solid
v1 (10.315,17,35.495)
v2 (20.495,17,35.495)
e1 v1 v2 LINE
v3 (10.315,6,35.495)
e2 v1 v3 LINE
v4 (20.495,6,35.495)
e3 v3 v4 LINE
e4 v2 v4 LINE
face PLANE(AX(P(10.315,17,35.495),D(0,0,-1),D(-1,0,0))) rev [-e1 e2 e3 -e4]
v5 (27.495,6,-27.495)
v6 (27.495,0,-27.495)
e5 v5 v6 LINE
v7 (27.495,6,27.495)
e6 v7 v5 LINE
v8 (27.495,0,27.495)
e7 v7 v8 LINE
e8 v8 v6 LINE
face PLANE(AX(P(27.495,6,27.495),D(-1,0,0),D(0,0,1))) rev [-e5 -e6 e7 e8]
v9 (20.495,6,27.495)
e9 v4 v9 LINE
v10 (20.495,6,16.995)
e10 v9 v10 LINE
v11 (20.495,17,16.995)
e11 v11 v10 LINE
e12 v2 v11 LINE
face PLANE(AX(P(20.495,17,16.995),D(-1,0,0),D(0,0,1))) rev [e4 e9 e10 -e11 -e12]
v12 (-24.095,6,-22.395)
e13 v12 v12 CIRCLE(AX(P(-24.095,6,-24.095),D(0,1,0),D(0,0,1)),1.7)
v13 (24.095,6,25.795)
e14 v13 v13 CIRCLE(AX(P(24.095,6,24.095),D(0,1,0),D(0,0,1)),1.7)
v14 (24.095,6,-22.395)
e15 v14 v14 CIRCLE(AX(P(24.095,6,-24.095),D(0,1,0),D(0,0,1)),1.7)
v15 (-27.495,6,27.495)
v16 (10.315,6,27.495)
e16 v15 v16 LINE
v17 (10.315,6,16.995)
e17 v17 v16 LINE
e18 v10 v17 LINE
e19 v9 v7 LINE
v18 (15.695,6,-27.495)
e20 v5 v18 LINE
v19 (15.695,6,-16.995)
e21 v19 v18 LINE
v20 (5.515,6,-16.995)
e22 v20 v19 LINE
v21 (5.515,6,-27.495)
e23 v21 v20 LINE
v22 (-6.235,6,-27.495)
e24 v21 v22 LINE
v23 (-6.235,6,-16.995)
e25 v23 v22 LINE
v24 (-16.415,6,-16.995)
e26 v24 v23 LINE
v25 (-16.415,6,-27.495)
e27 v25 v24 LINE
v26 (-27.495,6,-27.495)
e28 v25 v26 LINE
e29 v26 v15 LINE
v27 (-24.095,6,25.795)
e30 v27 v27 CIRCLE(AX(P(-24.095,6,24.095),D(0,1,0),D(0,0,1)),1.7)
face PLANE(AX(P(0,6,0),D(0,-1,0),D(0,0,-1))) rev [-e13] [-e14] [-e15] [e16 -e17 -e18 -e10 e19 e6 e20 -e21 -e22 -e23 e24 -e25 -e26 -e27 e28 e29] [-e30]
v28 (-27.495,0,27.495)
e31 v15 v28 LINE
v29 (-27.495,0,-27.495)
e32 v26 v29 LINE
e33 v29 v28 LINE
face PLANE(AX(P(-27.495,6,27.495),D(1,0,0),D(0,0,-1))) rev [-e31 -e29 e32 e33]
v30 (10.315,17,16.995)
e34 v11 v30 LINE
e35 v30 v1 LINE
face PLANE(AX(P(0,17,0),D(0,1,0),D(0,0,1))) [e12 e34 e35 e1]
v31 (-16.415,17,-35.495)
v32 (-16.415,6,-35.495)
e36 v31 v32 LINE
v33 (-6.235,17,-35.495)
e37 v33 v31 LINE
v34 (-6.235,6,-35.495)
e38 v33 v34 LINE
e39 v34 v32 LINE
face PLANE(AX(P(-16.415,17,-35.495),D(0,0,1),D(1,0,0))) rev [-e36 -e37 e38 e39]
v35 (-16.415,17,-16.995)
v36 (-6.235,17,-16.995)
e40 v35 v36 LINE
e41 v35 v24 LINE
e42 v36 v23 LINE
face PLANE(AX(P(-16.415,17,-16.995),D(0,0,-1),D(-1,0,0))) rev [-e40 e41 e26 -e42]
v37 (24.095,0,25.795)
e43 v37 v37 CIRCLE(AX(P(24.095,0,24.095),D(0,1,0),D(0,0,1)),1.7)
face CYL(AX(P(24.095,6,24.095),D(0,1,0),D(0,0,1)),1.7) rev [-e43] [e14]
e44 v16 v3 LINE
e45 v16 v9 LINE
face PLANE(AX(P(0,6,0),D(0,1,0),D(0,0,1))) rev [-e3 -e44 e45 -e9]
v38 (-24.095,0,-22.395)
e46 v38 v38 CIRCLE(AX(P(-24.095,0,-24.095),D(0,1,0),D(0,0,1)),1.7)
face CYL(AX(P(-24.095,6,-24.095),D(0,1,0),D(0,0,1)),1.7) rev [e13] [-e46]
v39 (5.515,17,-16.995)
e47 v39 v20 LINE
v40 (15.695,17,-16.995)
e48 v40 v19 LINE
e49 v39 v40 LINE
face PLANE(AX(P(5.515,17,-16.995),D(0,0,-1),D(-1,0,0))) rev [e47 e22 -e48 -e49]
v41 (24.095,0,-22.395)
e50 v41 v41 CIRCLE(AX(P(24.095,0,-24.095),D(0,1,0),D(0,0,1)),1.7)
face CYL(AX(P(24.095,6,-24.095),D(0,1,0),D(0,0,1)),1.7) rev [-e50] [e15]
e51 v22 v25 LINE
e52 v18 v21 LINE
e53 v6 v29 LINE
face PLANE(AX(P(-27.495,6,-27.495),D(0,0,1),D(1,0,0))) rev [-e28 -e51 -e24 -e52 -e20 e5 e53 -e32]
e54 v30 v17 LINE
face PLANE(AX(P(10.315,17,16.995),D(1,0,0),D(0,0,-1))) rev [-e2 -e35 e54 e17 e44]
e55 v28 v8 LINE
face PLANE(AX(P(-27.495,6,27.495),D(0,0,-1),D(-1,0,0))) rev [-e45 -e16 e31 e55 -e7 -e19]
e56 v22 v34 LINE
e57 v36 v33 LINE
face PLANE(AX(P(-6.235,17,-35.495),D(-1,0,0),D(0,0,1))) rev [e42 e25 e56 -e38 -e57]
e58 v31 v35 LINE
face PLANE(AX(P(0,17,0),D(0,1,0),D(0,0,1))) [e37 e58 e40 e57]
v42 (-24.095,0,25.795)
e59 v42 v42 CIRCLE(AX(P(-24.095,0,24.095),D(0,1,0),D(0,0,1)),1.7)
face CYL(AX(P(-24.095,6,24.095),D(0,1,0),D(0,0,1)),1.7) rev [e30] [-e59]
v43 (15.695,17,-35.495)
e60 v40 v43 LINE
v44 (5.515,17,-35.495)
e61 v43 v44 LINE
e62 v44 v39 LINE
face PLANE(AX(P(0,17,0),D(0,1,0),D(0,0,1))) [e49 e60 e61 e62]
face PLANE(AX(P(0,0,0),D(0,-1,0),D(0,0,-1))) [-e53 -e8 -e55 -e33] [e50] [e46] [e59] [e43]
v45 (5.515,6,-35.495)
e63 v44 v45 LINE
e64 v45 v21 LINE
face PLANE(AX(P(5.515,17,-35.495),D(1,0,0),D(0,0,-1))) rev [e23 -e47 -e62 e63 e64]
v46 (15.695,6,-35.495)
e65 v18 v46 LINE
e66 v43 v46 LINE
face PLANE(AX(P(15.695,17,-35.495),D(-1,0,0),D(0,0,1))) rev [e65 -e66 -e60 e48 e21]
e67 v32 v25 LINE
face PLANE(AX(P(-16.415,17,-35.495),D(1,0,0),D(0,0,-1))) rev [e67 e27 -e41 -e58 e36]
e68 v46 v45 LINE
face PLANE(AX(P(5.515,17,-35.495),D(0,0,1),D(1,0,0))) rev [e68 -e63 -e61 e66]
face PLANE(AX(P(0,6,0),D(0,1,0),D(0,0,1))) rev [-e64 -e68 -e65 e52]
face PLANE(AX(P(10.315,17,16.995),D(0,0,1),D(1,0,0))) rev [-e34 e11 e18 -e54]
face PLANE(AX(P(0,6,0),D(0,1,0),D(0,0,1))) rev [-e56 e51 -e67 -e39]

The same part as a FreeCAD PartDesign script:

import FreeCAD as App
import Part
import Sketcher
from FreeCAD import Vector
Q = App.Units.Quantity


def add_polygon(sketch, points):
    """Adds a closed chain of lines whose ends are joined by coincident constraints."""
    first, n = sketch.GeometryCount, len(points)
    for a, b in zip(points, points[1:] + points[:1]):
        sketch.addGeometry(Part.LineSegment(App.Vector(*a, 0), App.Vector(*b, 0)), False)
    for i in range(n):
        sketch.addConstraint(Sketcher.Constraint("Coincident", first + i, 2, first + (i + 1) % n, 1))

doc = App.newDocument("Part")
body = doc.addObject("PartDesign::Body", "Body")

# Sketch on XZ plane
sketch1 = doc.addObject("Sketcher::SketchObject", "Sketch")
body.addObject(sketch1)
sketch1.AttachmentSupport = (doc.XZ_Plane, [""])
sketch1.MapMode = "FlatFace"
add_polygon(sketch1, [(-27.495, -27.495), (-27.495, 27.495), (27.495, 27.495), (27.495, -27.495)])  # lines 0-3
sketch1.addConstraint([
    Sketcher.Constraint("Vertical", 0),
    Sketcher.Constraint("Horizontal", 1),
    Sketcher.Constraint("Vertical", 2),
    Sketcher.Constraint("Horizontal", 3),
    Sketcher.Constraint("Symmetric", 0, 2, 2, 2, -1, 1),
    Sketcher.Constraint("Equal", 3, 0),
    Sketcher.Constraint("DistanceX", 1, 1, 1, 2, Q("54.99 mm")),
])
pad1 = doc.addObject("PartDesign::Pad", "Pad")
body.addObject(pad1)
pad1.Profile = sketch1
pad1.Length = 6
pad1.Reversed = True

# Sketch on XZ plane
sketch2 = doc.addObject("Sketcher::SketchObject", "Sketch001")
body.addObject(sketch2)
sketch2.AttachmentSupport = (doc.XZ_Plane, [""])
sketch2.MapMode = "FlatFace"
sketch2.AttachmentOffset = App.Placement(Vector(0, 0, -6), App.Rotation())
sketch2.addGeometry([
    Part.Circle(Vector(-24.095, -24.095, 0), Vector(0, 0, 1), 1.7),
    Part.Circle(Vector(24.095, -24.095, 0), Vector(0, 0, 1), 1.7),
    Part.Circle(Vector(24.095, 24.095, 0), Vector(0, 0, 1), 1.7),
    Part.Circle(Vector(-24.095, 24.095, 0), Vector(0, 0, 1), 1.7),
], False)
sketch2.addConstraint([
    Sketcher.Constraint("Equal", 0, 1),
    Sketcher.Constraint("Equal", 1, 2),
    Sketcher.Constraint("Equal", 2, 3),
    Sketcher.Constraint("Symmetric", 0, 3, 2, 3, -1, 1),
    Sketcher.Constraint("Symmetric", 1, 3, 3, 3, -1, 1),
    Sketcher.Constraint("Symmetric", 0, 3, 1, 3, -2),
    Sketcher.Constraint("Diameter", 0, Q("3.4 mm")),
    Sketcher.Constraint("DistanceX", 0, 3, 1, 3, Q("48.19 mm")),
    Sketcher.Constraint("DistanceY", 1, 3, 2, 3, Q("48.19 mm")),
])
doc.recompute()
hole = doc.addObject("PartDesign::Hole", "Hole")
body.addObject(hole)
hole.Profile = sketch2
hole.ThreadType = "None"
hole.Diameter = 3.4
hole.DepthType = "ThroughAll"
hole.Reversed = True

# Sketch on XZ plane
sketch3 = doc.addObject("Sketcher::SketchObject", "Sketch002")
body.addObject(sketch3)
sketch3.AttachmentSupport = (doc.XZ_Plane, [""])
sketch3.MapMode = "FlatFace"
sketch3.AttachmentOffset = App.Placement(Vector(0, 0, -6), App.Rotation())
add_polygon(sketch3, [(-16.415, -35.495), (-16.415, -16.995), (-6.235, -16.995), (-6.235, -35.495)])  # lines 0-3
add_polygon(sketch3, [(5.515, -35.495), (5.515, -16.995), (15.695, -16.995), (15.695, -35.495)])  # lines 4-7
add_polygon(sketch3, [(10.315, 16.995), (10.315, 35.495), (20.495, 35.495), (20.495, 16.995)])  # lines 8-11
sketch3.addConstraint([
    Sketcher.Constraint("Vertical", 0),
    Sketcher.Constraint("Horizontal", 1),
    Sketcher.Constraint("Vertical", 2),
    Sketcher.Constraint("Horizontal", 3),
    Sketcher.Constraint("Vertical", 4),
    Sketcher.Constraint("Horizontal", 5),
    Sketcher.Constraint("Vertical", 6),
    Sketcher.Constraint("Horizontal", 7),
    Sketcher.Constraint("Vertical", 8),
    Sketcher.Constraint("Horizontal", 9),
    Sketcher.Constraint("Vertical", 10),
    Sketcher.Constraint("Horizontal", 11),
    Sketcher.Constraint("Horizontal", 1, 2, 4, 2),
    Sketcher.Constraint("Horizontal", 3, 2, 6, 2),
    Sketcher.Constraint("Equal", 3, 5),
    Sketcher.Constraint("Equal", 7, 9),
    Sketcher.Constraint("Equal", 6, 8),
    Sketcher.Constraint("DistanceY", 0, 1, 0, 2, Q("18.5 mm")),
    Sketcher.Constraint("DistanceX", 1, 1, 1, 2, Q("10.18 mm")),
    Sketcher.Constraint("DistanceX", 4, 2, 8, 2, Q("4.8 mm")),
    Sketcher.Constraint("DistanceX", 1, 2, 4, 2, Q("11.75 mm")),
    Sketcher.Constraint("DistanceY", 4, 2, 8, 2, Q("52.49 mm")),
    Sketcher.Constraint("DistanceX", 0, 2, -1, 1, Q("16.415 mm")),
    Sketcher.Constraint("DistanceY", 0, 2, -1, 1, Q("16.995 mm")),
])
pad2 = doc.addObject("PartDesign::Pad", "Pad001")
body.addObject(pad2)
pad2.Profile = sketch3
pad2.Length = 11
pad2.Reversed = True

doc.recompute()
